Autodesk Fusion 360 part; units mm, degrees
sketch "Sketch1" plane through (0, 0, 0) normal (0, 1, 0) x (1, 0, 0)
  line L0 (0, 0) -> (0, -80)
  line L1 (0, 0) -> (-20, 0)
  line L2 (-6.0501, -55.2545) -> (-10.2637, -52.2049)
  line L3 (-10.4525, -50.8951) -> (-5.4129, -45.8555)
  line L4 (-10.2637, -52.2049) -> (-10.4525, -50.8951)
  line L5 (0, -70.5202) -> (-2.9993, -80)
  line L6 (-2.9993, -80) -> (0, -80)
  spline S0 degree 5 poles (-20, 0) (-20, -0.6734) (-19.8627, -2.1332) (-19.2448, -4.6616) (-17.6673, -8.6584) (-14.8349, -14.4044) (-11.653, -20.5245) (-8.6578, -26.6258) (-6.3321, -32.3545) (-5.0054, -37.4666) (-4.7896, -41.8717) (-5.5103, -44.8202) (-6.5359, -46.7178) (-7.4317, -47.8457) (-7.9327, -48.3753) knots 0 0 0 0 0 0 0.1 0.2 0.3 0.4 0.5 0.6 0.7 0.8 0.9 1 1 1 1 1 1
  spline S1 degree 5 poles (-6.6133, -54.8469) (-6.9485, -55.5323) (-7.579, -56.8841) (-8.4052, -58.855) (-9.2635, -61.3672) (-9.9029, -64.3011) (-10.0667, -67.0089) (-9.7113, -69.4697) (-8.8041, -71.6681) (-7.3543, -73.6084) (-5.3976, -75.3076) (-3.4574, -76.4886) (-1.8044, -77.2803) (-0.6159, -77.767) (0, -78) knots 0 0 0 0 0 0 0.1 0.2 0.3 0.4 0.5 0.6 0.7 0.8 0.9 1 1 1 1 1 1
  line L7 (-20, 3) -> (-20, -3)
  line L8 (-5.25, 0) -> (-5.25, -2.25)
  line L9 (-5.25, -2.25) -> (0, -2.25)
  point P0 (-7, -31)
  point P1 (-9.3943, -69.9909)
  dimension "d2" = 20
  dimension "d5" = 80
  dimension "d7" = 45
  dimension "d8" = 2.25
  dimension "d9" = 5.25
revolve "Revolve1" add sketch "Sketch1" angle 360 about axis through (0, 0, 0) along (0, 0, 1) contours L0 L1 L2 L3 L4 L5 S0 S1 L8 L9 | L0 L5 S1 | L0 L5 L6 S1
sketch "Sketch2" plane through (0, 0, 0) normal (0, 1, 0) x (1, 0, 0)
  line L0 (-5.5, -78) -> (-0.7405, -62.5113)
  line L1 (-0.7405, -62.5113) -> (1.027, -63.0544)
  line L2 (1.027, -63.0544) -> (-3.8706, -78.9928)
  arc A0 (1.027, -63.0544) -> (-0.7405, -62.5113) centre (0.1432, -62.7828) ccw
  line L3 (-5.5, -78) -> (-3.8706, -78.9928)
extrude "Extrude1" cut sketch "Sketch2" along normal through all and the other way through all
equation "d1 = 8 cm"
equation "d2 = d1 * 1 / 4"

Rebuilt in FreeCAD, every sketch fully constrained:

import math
import FreeCAD as App
import Part
import Sketcher
Q = App.Units.Quantity

doc = App.newDocument("Part")
params = doc.addObject("Spreadsheet::Sheet", "Params")
for row, (alias, value) in enumerate([
    ("sketch1_width", "5.25 mm"),
    ("sketch1_height", "2.25 mm"),
    ("revolution_angle", "360 deg"),
], start=1):
    params.set(f"A{row}", alias)
    params.set(f"B{row}", "=" + value)
    params.setAlias(f"B{row}", alias)

body = doc.addObject("PartDesign::Body", "Body")

# Sketch on XZ plane
sketch1 = body.newObject("Sketcher::SketchObject", "Sketch")
sketch1.AttachmentSupport = (doc.getObject("XZ_Plane"), [""])
sketch1.MapMode = "FlatFace"
sketch1.addGeometry([
    Part.LineSegment(App.Vector(0, 2.25, 0), App.Vector(-5.25, 2.25, 0)),  # 0
    Part.LineSegment(App.Vector(-5.25, 2.25, 0), App.Vector(-5.25, 0, 0)),  # 1
    Part.LineSegment(App.Vector(-5.25, 0, 0), App.Vector(-20, 0, 0)),  # 2
    Part.BSplineCurve([App.Vector(-20, 0, 0), App.Vector(-20, 0.6734, 0), App.Vector(-19.8627, 2.1332, 0), App.Vector(-19.2448, 4.6616, 0), App.Vector(-17.6673, 8.6584, 0), App.Vector(-14.8349, 14.4044, 0), App.Vector(-11.653, 20.5245, 0), App.Vector(-8.6578, 26.6258, 0), App.Vector(-6.3321, 32.3545, 0), App.Vector(-5.0054, 37.4666, 0), App.Vector(-4.7896, 41.8717, 0), App.Vector(-5.5103, 44.8202, 0), App.Vector(-6.5359, 46.7178, 0), App.Vector(-7.4317, 47.8457, 0), App.Vector(-7.9327, 48.3753, 0)], [6, 1, 1, 1, 1, 1, 1, 1, 1, 1, 6], [0, 0.1, 0.2, 0.3, 0.4, 0.5, 0.6, 0.7, 0.8, 0.9, 1], False, 5, [1, 1, 1, 1, 1, 1, 1, 1, 1, 1, 1, 1, 1, 1, 1], False),  # 3
    Part.LineSegment(App.Vector(-7.9327, 48.3753, 0), App.Vector(-10.4525, 50.8951, 0)),  # 4
    Part.LineSegment(App.Vector(-10.4525, 50.8951, 0), App.Vector(-10.2637, 52.2049, 0)),  # 5
    Part.LineSegment(App.Vector(-10.2637, 52.2049, 0), App.Vector(-6.613292, 54.846889, 0)),  # 6
    Part.BSplineCurve([App.Vector(-6.6133, 54.8469, 0), App.Vector(-6.9485, 55.5323, 0), App.Vector(-7.579, 56.8841, 0), App.Vector(-8.4052, 58.855, 0), App.Vector(-9.2635, 61.3672, 0), App.Vector(-9.9029, 64.3011, 0), App.Vector(-10.0667, 67.0089, 0), App.Vector(-9.7113, 69.4697, 0), App.Vector(-8.8041, 71.6681, 0), App.Vector(-7.3543, 73.6084, 0), App.Vector(-5.676826, 75.06512, 0), App.Vector(-4.137653, 76.061595, 0), App.Vector(-2.950088, 76.699366, 0), App.Vector(-2.245566, 77.040934, 0), App.Vector(-2.086881, 77.116143, 0)], [6, 1, 1, 1, 1, 1, 1, 1, 1, 1, 6], [0, 0.1, 0.2, 0.3, 0.4, 0.5, 0.6, 0.7, 0.8, 0.9, 0.928648637], False, 5, [1, 1, 1, 1, 1, 1, 1, 1, 1, 1, 1, 1, 1, 1, 1], False),  # 7
    Part.LineSegment(App.Vector(-2.086881, 77.116143, 0), App.Vector(-2.9993, 80, 0)),  # 8
    Part.LineSegment(App.Vector(-2.9993, 80, 0), App.Vector(0, 80, 0)),  # 9
    Part.LineSegment(App.Vector(0, 80, 0), App.Vector(0, 2.25, 0)),  # 10
], False)
sketch1.addConstraint([
    Sketcher.Constraint("Block", 3),
    Sketcher.Constraint("Block", 7),
    Sketcher.Constraint("Coincident", 0, 2, 1, 1),
    Sketcher.Constraint("Coincident", 1, 2, 2, 1),
    Sketcher.Constraint("Coincident", 2, 2, 3, 1),
    Sketcher.Constraint("Coincident", 3, 2, 4, 1),
    Sketcher.Constraint("Coincident", 4, 2, 5, 1),
    Sketcher.Constraint("Coincident", 5, 2, 6, 1),
    Sketcher.Constraint("Coincident", 6, 2, 7, 1),
    Sketcher.Constraint("Coincident", 7, 2, 8, 1),
    Sketcher.Constraint("Coincident", 8, 2, 9, 1),
    Sketcher.Constraint("Coincident", 9, 2, 10, 1),
    Sketcher.Constraint("Coincident", 10, 2, 0, 1),
    Sketcher.Constraint("Horizontal", 0),
    Sketcher.Constraint("Vertical", 1),
    Sketcher.Constraint("Horizontal", 2),
    Sketcher.Constraint("Horizontal", 9),
    Sketcher.Constraint("Vertical", 10),
    Sketcher.Constraint("PointOnObject", 9, 2, -2),
    Sketcher.Constraint("DistanceY", -1, 1, 8, 2, Q("80 mm")),
    Sketcher.Constraint("DistanceX", 0, 2, 0, 1, Q("5.25 mm")),
    Sketcher.Constraint("DistanceY", 1, 2, 1, 1, Q("2.25 mm")),
    Sketcher.Constraint("Angle", 4, Q("135 deg")),
    Sketcher.Constraint("DistanceX", 9, 1, 9, 2, Q("2.9993 mm")),
    Sketcher.Constraint("DistanceY", -1, 1, 4, 2, Q("50.895 mm")),
    Sketcher.Constraint("DistanceY", -1, 1, 5, 2, Q("52.205 mm")),
    Sketcher.Constraint("Distance", 5, Q("1.3233 mm")),
])
sketch1.setExpression("Constraints[20]", "Params.sketch1_width")
sketch1.setExpression("Constraints[21]", "Params.sketch1_height")
revolution = body.newObject("PartDesign::Revolution", "Revolution")
revolution.Profile = sketch1
revolution.ReferenceAxis = (sketch1, ["V_Axis"])
revolution.setExpression("Angle", "Params.revolution_angle")

# Sketch on XZ plane
sketch2 = body.newObject("Sketcher::SketchObject", "Sketch001")
sketch2.AttachmentSupport = (doc.getObject("XZ_Plane"), [""])
sketch2.MapMode = "FlatFace"
sketch2.addGeometry([
    Part.LineSegment(App.Vector(-0.7, 62.5, 0), App.Vector(-5.5, 78, 0)),
    Part.LineSegment(App.Vector(-5.5, 78, 0), App.Vector(-3.9, 79, 0)),
    Part.LineSegment(App.Vector(-3.9, 79, 0), App.Vector(1, 63.1, 0)),
    Part.ArcOfCircle(Part.Circle(App.Vector(0.1, 62.8, 0), App.Vector(0, 0, 1), 0.9), math.radians(-163), math.radians(17)),
], False)
sketch2.addConstraint([
    Sketcher.Constraint("Coincident", 0, 2, 1, 1),
    Sketcher.Constraint("Coincident", 1, 2, 2, 1),
    Sketcher.Constraint("Tangent", 2, 2, 3, 2),
    Sketcher.Constraint("Tangent", 3, 1, 0, 1),
    Sketcher.Constraint("Parallel", 0, 2),
    Sketcher.Constraint("DistanceY", -1, 1, 0, 2, Q("78 mm")),
    Sketcher.Constraint("DistanceX", 0, 2, -1, 1, Q("5.5 mm")),
    Sketcher.Constraint("Radius", 3, Q("0.9246 mm")),
    Sketcher.Constraint("DistanceY", 3, 3, 1, 2, Q("16.21 mm")),
    Sketcher.Constraint("DistanceX", 1, 2, 3, 1, Q("3.13 mm")),
    Sketcher.Constraint("Distance", 1, Q("1.908 mm")),
])
pocket1 = body.newObject("PartDesign::Pocket", "Pocket")
pocket1.Profile = sketch2
pocket1.Type = "ThroughAll"
pocket1.Midplane = True

doc.recompute()
